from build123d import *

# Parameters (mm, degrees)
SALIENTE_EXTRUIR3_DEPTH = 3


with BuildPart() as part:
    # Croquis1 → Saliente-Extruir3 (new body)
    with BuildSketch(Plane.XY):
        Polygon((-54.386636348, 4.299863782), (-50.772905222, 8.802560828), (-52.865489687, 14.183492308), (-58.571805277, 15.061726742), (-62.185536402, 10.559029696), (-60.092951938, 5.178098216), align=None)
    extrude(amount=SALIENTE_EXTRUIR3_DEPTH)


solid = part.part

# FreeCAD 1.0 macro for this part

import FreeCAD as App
import Part
import Sketcher

doc = App.newDocument("Part")
body = doc.addObject("PartDesign::Body", "Body")

# Sketch on XY plane
sketch1 = doc.addObject("Sketcher::SketchObject", "Sketch")
body.addObject(sketch1)
sketch1.AttachmentSupport = (doc.XY_Plane, [""])
sketch1.MapMode = "FlatFace"
sketch1.addGeometry(Part.LineSegment(App.Vector(-54.386636, 4.299864, 0), App.Vector(-50.772905, 8.802561, 0)), False)
sketch1.addGeometry(Part.LineSegment(App.Vector(-50.772905, 8.802561, 0), App.Vector(-52.86549, 14.183492, 0)), False)
sketch1.addGeometry(Part.LineSegment(App.Vector(-52.86549, 14.183492, 0), App.Vector(-58.571805, 15.061727, 0)), False)
sketch1.addGeometry(Part.LineSegment(App.Vector(-58.571805, 15.061727, 0), App.Vector(-62.185536, 10.55903, 0)), False)
sketch1.addGeometry(Part.LineSegment(App.Vector(-62.185536, 10.55903, 0), App.Vector(-60.092952, 5.178098, 0)), False)
sketch1.addGeometry(Part.LineSegment(App.Vector(-60.092952, 5.178098, 0), App.Vector(-54.386636, 4.299864, 0)), False)
sketch1.addConstraint(Sketcher.Constraint("Coincident", 0, 2, 1, 1))
sketch1.addConstraint(Sketcher.Constraint("Coincident", 1, 2, 2, 1))
sketch1.addConstraint(Sketcher.Constraint("Coincident", 2, 2, 3, 1))
sketch1.addConstraint(Sketcher.Constraint("Coincident", 3, 2, 4, 1))
sketch1.addConstraint(Sketcher.Constraint("Coincident", 4, 2, 5, 1))
sketch1.addConstraint(Sketcher.Constraint("Coincident", 5, 2, 0, 1))
sketch1.addConstraint(Sketcher.Constraint("Parallel", 0, 3))
sketch1.addConstraint(Sketcher.Constraint("Parallel", 1, 4))
sketch1.addConstraint(Sketcher.Constraint("Parallel", 2, 5))
sketch1.addConstraint(Sketcher.Constraint("Equal", 0, 1))
sketch1.addConstraint(Sketcher.Constraint("Equal", 1, 2))
sketch1.addConstraint(Sketcher.Constraint("Equal", 2, 3))
sketch1.addConstraint(Sketcher.Constraint("DistanceY", -1, 1, 4, 2, 5.178098))
sketch1.addConstraint(Sketcher.Constraint("DistanceX", 2, 2, 0, 2, 7.7989))
sketch1.addConstraint(Sketcher.Constraint("DistanceY", -1, 1, 0, 2, 8.802561))
sketch1.addConstraint(Sketcher.Constraint("DistanceX", 1, 2, -1, 1, 52.86549))
sketch1.addConstraint(Sketcher.Constraint("DistanceY", -1, 1, 3, 2, 10.55903))
sketch1.addConstraint(Sketcher.Constraint("DistanceX", 4, 2, -1, 1, 60.092952))
pad1 = doc.addObject("PartDesign::Pad", "Pad")
body.addObject(pad1)
pad1.Profile = sketch1
pad1.Length = 3

doc.recompute()
